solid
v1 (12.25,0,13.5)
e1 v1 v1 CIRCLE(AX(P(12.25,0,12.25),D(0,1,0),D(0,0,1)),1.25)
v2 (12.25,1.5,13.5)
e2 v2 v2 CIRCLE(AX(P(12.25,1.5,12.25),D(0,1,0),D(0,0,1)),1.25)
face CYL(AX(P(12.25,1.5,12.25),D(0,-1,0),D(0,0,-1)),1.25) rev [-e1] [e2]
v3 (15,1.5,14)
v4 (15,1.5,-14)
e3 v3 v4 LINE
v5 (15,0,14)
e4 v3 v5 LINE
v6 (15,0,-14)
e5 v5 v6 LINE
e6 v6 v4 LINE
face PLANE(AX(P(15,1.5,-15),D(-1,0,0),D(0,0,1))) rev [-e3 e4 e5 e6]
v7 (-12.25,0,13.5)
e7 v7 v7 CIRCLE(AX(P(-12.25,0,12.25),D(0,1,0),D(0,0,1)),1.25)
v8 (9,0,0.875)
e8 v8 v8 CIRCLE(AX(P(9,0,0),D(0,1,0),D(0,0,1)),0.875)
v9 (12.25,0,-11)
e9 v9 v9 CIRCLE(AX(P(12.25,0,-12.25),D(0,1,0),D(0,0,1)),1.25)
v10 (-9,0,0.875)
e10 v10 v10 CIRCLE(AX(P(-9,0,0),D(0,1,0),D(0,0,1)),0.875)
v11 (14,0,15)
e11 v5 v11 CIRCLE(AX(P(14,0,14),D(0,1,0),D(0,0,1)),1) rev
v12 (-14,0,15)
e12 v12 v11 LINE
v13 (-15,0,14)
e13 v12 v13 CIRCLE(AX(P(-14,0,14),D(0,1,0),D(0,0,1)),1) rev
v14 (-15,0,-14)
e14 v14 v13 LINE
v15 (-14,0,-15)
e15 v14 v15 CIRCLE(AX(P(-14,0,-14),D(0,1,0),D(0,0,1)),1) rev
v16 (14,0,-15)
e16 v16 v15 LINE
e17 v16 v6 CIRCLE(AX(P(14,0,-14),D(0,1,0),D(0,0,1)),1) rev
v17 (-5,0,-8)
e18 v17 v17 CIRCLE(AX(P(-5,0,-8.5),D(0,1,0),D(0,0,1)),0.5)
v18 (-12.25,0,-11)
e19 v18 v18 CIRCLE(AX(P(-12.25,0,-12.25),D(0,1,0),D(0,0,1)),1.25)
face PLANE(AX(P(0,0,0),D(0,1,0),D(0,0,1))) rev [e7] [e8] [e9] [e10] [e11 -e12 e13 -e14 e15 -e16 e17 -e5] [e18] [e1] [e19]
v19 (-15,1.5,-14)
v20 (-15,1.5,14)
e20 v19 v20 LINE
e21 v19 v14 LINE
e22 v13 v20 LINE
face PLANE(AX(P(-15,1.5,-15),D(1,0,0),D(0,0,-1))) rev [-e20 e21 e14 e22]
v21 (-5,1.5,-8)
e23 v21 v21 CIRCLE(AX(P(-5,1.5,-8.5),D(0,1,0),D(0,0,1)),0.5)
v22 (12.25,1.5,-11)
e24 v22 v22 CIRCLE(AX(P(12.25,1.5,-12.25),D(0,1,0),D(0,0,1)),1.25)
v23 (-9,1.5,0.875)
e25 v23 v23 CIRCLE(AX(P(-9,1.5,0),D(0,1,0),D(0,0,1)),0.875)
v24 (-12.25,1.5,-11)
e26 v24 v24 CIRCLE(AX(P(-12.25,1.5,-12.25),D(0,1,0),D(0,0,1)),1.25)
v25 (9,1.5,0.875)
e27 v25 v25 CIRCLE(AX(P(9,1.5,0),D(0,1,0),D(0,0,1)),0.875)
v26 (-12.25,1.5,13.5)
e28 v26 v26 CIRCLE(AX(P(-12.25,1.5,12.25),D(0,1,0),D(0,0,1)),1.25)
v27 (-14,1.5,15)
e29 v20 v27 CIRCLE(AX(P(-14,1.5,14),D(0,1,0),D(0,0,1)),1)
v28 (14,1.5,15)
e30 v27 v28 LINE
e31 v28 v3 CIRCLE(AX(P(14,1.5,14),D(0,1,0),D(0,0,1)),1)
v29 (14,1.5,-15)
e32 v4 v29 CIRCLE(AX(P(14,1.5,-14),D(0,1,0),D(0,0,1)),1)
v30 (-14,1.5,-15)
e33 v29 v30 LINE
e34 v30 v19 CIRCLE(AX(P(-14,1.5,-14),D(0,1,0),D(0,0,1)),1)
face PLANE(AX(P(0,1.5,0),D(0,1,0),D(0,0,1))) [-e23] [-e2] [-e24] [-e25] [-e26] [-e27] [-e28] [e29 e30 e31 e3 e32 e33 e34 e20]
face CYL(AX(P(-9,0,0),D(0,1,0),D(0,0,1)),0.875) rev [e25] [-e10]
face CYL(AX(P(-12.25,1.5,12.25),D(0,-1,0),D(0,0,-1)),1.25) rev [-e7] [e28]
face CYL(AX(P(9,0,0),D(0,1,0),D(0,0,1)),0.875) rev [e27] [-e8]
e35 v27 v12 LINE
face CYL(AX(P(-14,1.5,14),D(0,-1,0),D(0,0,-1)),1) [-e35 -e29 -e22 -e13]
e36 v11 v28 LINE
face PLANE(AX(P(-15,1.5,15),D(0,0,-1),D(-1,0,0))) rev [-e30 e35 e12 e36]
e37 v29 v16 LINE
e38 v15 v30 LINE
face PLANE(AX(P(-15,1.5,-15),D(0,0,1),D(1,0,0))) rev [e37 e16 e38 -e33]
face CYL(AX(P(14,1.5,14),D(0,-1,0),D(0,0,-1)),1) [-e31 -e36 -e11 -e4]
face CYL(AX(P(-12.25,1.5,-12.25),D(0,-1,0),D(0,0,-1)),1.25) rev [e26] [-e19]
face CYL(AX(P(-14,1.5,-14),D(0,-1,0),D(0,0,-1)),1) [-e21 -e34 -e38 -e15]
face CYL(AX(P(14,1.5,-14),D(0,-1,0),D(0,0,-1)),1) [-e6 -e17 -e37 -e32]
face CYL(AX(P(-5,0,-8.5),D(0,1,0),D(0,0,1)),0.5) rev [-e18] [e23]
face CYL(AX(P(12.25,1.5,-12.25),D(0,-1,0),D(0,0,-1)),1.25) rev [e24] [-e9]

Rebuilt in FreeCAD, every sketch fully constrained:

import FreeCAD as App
import Part
import Sketcher

V = App.Vector
Q = App.Units.Quantity


def edges_at(feature, points):
    """Names of the edges that pass closest to the given points."""
    edges = feature.Shape.Edges
    near = lambda p: min(range(len(edges)), key=lambda i: edges[i].distToShape(Part.Vertex(*p))[0])
    return sorted({f"Edge{near(p) + 1}" for p in points})

doc = App.newDocument("Part")
body = doc.addObject("PartDesign::Body", "Body")

sketch1 = body.newObject("Sketcher::SketchObject", "Sketch")
sketch1.AttachmentSupport = (doc.getObject("XZ_Plane"), [""])
sketch1.MapMode = "FlatFace"
sketch1.addGeometry([
    Part.LineSegment(V(-15, -15, 0), V(-15, 15, 0)),
    Part.LineSegment(V(-15, 15, 0), V(15, 15, 0)),
    Part.LineSegment(V(15, 15, 0), V(15, -15, 0)),
    Part.LineSegment(V(15, -15, 0), V(-15, -15, 0)),
    Part.Circle(V(-12.2, 12.2, 0), V(0, 0, 1), 1.2),
    Part.Circle(V(12.2, 12.2, 0), V(0, 0, 1), 1.2),
    Part.Circle(V(-12.2, -12.2, 0), V(0, 0, 1), 1.2),
    Part.Circle(V(12.2, -12.2, 0), V(0, 0, 1), 1.2),
], False)
sketch1.addConstraint([
    Sketcher.Constraint("Coincident", 0, 2, 1, 1),
    Sketcher.Constraint("Coincident", 1, 2, 2, 1),
    Sketcher.Constraint("Coincident", 2, 2, 3, 1),
    Sketcher.Constraint("Coincident", 3, 2, 0, 1),
    Sketcher.Constraint("Vertical", 0),
    Sketcher.Constraint("Horizontal", 1),
    Sketcher.Constraint("Vertical", 2),
    Sketcher.Constraint("Horizontal", 3),
    Sketcher.Constraint("Equal", 4, 5),
    Sketcher.Constraint("Equal", 5, 6),
    Sketcher.Constraint("Equal", 6, 7),
    Sketcher.Constraint("Symmetric", 5, 3, 6, 3, -1, 1),
    Sketcher.Constraint("Symmetric", 4, 3, 7, 3, -1, 1),
    Sketcher.Constraint("Symmetric", 0, 2, 2, 2, -1, 1),
    Sketcher.Constraint("Symmetric", 4, 3, 5, 3, -2),
    Sketcher.Constraint("Equal", 3, 0),
    Sketcher.Constraint("Diameter", 4, Q("2.5 mm")),
    Sketcher.Constraint("DistanceX", 1, 1, 1, 2, Q("30 mm")),
    Sketcher.Constraint("DistanceX", 4, 3, 5, 3, Q("24.5 mm")),
    Sketcher.Constraint("DistanceY", 6, 3, 4, 3, Q("24.5 mm")),
])
pad1 = body.newObject("PartDesign::Pad", "Pad")
pad1.Profile = sketch1
pad1.Length = 1.5
pad1.Reversed = True
doc.recompute()

fillet = body.newObject("PartDesign::Fillet", "Fillet")
fillet.Base = (pad1, edges_at(pad1, [
    (-15, 0.75, -15),
    (15, 0.75, -15),
    (15, 0.75, 15),
    (-15, 0.75, 15),
]))
fillet.Radius = 1

sketch2 = body.newObject("Sketcher::SketchObject", "Sketch001")
sketch2.AttachmentSupport = (doc.getObject("XZ_Plane"), [""])
sketch2.MapMode = "FlatFace"
sketch2.AttachmentOffset = App.Placement(V(0, 0, -1.5), App.Rotation())
sketch2.addGeometry([
    Part.Circle(V(-5, -8.5, 0), V(0, 0, 1), 0.5),
    Part.Circle(V(-9, 0, 0), V(0, 0, 1), 0.9),
    Part.Circle(V(9, 0, 0), V(0, 0, 1), 0.9),
], False)
sketch2.addConstraint([
    Sketcher.Constraint("Equal", 1, 2),
    Sketcher.Constraint("Symmetric", 1, 3, 2, 3, -1, 1),
    Sketcher.Constraint("PointOnObject", 1, 3, -1),
    Sketcher.Constraint("Diameter", 0, Q("1 mm")),
    Sketcher.Constraint("Diameter", 1, Q("1.75 mm")),
    Sketcher.Constraint("DistanceX", 0, 3, -1, 1, Q("5 mm")),
    Sketcher.Constraint("DistanceX", 1, 3, -1, 1, Q("9 mm")),
    Sketcher.Constraint("DistanceY", 0, 3, -1, 1, Q("8.5 mm")),
])
pocket1 = body.newObject("PartDesign::Pocket", "Pocket")
pocket1.Profile = sketch2
pocket1.Type = "ThroughAll"
pocket1.Reversed = True

doc.recompute()
